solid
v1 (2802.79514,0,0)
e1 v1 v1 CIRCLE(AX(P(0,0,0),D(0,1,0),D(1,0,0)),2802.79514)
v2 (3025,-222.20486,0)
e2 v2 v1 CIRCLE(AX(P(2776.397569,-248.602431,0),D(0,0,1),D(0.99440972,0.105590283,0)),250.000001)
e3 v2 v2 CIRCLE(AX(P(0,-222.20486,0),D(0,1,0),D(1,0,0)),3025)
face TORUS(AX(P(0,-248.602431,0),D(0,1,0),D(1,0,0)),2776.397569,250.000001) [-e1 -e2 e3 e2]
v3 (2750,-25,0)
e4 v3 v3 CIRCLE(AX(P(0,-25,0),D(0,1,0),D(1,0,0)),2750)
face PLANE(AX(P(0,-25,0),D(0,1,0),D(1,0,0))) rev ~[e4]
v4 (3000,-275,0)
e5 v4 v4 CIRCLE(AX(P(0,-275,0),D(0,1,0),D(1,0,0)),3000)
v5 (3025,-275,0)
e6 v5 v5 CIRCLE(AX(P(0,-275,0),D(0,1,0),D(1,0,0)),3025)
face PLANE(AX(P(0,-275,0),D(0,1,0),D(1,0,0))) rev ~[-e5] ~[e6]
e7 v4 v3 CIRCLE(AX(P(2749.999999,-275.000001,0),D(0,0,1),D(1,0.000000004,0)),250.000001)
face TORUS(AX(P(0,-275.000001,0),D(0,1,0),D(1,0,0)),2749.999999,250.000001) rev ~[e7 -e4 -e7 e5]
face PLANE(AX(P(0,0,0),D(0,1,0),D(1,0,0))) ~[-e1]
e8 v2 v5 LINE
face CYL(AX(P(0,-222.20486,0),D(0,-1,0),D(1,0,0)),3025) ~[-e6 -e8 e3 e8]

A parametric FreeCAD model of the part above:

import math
import FreeCAD as App
import Part
import Sketcher

doc = App.newDocument("Part")
params = doc.addObject("Spreadsheet::Sheet", "Params")
for row, (alias, value) in enumerate([
    ("sketch1_radius", "250.000001 mm"),
    ("sketch1_width", "2750 mm"),
    ("sketch1_width2", "25 mm"),
    ("revolution_angle", "360 deg"),
], start=1):
    params.set(f"A{row}", alias)
    params.set(f"B{row}", "=" + value)
    params.setAlias(f"B{row}", alias)

body = doc.addObject("PartDesign::Body", "Body")

sketch1 = doc.addObject("Sketcher::SketchObject", "Sketch")
body.addObject(sketch1)
sketch1.AttachmentSupport = (doc.XY_Plane, [""])
sketch1.MapMode = "FlatFace"
sketch1.addGeometry(Part.LineSegment(App.Vector(2803, 0, 0), App.Vector(0, 0, 0)), False)
sketch1.addGeometry(Part.LineSegment(App.Vector(0, 0, 0), App.Vector(0, -25, 0)), False)
sketch1.addGeometry(Part.LineSegment(App.Vector(0, -25, 0), App.Vector(2750, -25, 0)), False)
sketch1.addGeometry(Part.ArcOfCircle(Part.Circle(App.Vector(2750, -275, 0), App.Vector(0, 0, 1), 250), math.radians(0), math.radians(90)), False)
sketch1.addGeometry(Part.LineSegment(App.Vector(3000, -275, 0), App.Vector(3025, -275, 0)), False)
sketch1.addGeometry(Part.LineSegment(App.Vector(3025, -275, 0), App.Vector(3025, -222, 0)), False)
sketch1.addGeometry(Part.ArcOfCircle(Part.Circle(App.Vector(2776, -249, 0), App.Vector(0, 0, 1), 250), math.radians(6), math.radians(84)), False)
sketch1.addConstraint(Sketcher.Constraint("Coincident", 0, 2, 1, 1))
sketch1.addConstraint(Sketcher.Constraint("Coincident", 1, 2, 2, 1))
sketch1.addConstraint(Sketcher.Constraint("Tangent", 2, 2, 3, 2))
sketch1.addConstraint(Sketcher.Constraint("Coincident", 3, 1, 4, 1))
sketch1.addConstraint(Sketcher.Constraint("Coincident", 4, 2, 5, 1))
sketch1.addConstraint(Sketcher.Constraint("Coincident", 5, 2, 6, 1))
sketch1.addConstraint(Sketcher.Constraint("Coincident", 6, 2, 0, 1))
sketch1.addConstraint(Sketcher.Constraint("Horizontal", 0))
sketch1.addConstraint(Sketcher.Constraint("Vertical", 1))
sketch1.addConstraint(Sketcher.Constraint("Horizontal", 2))
sketch1.addConstraint(Sketcher.Constraint("Horizontal", 4))
sketch1.addConstraint(Sketcher.Constraint("Vertical", 5))
sketch1.addConstraint(Sketcher.Constraint("Coincident", 0, 2, -1, 1))
sketch1.addConstraint(Sketcher.Constraint("Equal", 3, 6))
sketch1.addConstraint(Sketcher.Constraint("Equal", 4, 1))
sketch1.addConstraint(Sketcher.Constraint("Radius", 3, 250.000001))
sketch1.addConstraint(Sketcher.Constraint("DistanceX", 2, 1, 2, 2, 2750.0))
sketch1.addConstraint(Sketcher.Constraint("DistanceX", 4, 1, 4, 2, 25.0))
sketch1.addConstraint(Sketcher.Constraint("DistanceY", 3, 1, -1, 1, 275.0))
sketch1.addConstraint(Sketcher.Constraint("DistanceX", 0, 2, 0, 1, 2802.79514))
sketch1.addConstraint(Sketcher.Constraint("DistanceY", 5, 1, 5, 2, 52.79514))
sketch1.setExpression("Constraints[15]", "Params.sketch1_radius")
sketch1.setExpression("Constraints[16]", "Params.sketch1_width")
sketch1.setExpression("Constraints[17]", "Params.sketch1_width2")
revolution = doc.addObject("PartDesign::Revolution", "Revolution")
body.addObject(revolution)
revolution.Profile = sketch1
revolution.ReferenceAxis = (sketch1, ["V_Axis"])
revolution.setExpression("Angle", "Params.revolution_angle")

doc.recompute()
